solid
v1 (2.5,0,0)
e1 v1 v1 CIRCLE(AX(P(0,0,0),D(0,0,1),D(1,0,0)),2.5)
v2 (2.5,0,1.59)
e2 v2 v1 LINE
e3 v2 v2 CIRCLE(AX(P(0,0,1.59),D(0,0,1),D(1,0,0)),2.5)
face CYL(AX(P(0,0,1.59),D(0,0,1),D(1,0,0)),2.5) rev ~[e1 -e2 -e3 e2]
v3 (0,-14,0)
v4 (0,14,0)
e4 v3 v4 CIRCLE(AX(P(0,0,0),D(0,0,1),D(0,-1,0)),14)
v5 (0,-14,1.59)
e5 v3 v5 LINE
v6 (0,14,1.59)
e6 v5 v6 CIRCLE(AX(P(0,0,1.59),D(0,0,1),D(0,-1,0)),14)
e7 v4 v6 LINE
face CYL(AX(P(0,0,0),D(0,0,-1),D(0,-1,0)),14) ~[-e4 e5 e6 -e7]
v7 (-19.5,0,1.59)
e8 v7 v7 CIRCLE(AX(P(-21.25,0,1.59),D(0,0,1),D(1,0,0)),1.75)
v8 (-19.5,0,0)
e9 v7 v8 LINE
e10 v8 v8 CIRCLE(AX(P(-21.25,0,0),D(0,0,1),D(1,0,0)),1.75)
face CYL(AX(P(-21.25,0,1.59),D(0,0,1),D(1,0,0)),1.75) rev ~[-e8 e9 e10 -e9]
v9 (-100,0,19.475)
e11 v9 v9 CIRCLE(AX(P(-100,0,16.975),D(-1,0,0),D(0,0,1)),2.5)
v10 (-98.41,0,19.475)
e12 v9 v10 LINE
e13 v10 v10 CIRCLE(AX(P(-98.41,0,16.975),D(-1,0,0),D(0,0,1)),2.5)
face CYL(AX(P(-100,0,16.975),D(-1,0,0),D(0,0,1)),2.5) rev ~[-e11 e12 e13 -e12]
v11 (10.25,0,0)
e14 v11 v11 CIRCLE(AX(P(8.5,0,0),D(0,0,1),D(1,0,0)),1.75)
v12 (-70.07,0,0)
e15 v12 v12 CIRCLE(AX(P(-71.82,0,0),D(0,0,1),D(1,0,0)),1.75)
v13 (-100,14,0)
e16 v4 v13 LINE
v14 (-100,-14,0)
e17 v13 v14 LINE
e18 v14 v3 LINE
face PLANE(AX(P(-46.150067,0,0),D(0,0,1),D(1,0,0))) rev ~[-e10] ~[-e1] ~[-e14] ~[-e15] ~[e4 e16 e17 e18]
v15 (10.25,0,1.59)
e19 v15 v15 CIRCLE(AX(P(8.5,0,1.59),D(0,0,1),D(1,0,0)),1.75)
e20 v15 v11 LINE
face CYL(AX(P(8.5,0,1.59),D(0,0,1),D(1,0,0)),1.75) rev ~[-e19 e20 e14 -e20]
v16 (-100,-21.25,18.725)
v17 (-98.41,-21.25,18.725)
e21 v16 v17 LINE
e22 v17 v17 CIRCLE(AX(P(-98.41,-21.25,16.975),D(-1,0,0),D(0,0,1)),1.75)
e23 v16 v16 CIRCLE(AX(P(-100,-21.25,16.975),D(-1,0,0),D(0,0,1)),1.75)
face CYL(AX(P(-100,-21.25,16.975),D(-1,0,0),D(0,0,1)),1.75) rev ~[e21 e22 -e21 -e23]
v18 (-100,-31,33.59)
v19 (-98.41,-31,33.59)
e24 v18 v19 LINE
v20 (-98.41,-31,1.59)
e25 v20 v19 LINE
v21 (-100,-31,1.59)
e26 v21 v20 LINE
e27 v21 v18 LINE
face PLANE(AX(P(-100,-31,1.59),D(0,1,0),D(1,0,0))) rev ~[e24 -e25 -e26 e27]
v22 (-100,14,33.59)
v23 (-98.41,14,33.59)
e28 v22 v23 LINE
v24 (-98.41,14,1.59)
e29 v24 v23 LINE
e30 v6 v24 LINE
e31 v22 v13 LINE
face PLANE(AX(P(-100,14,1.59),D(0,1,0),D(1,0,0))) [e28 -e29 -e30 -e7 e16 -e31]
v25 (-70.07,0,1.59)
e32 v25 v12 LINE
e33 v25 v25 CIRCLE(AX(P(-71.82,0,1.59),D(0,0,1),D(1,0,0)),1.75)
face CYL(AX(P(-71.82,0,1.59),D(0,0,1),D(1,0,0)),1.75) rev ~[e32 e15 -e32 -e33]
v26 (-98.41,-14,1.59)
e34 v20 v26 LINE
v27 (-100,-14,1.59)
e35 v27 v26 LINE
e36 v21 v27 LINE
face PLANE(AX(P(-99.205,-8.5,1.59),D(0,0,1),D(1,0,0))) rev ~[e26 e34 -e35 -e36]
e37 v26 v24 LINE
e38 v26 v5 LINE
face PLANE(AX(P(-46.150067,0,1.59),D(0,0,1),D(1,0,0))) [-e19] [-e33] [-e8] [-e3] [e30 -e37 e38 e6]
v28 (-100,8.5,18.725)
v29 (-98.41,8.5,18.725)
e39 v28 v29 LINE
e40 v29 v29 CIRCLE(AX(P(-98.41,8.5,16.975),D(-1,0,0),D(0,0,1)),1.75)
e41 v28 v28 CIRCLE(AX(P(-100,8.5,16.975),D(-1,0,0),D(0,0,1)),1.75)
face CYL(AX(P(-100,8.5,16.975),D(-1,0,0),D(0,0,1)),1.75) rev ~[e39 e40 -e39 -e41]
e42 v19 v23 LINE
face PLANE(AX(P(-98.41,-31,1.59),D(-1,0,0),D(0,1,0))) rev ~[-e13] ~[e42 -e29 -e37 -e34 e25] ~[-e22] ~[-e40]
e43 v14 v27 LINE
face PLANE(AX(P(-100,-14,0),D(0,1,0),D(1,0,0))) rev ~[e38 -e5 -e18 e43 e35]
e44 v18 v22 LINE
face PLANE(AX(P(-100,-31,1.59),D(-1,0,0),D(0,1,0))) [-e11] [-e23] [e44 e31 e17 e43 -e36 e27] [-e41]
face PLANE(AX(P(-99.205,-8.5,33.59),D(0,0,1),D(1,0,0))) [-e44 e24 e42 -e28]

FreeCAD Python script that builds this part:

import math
import FreeCAD as App
import Part
import Sketcher

V = App.Vector


def add_polygon(sketch, points):
    """Adds a closed chain of lines whose ends are joined by coincident constraints."""
    first, n = sketch.GeometryCount, len(points)
    for a, b in zip(points, points[1:] + points[:1]):
        sketch.addGeometry(Part.LineSegment(App.Vector(*a, 0), App.Vector(*b, 0)), False)
    for i in range(n):
        sketch.addConstraint(Sketcher.Constraint("Coincident", first + i, 2, first + (i + 1) % n, 1))

doc = App.newDocument("Part")
body = doc.addObject("PartDesign::Body", "Body")

# Sketch on XY plane
sketch1 = body.newObject("Sketcher::SketchObject", "Sketch")
sketch1.AttachmentSupport = (doc.getObject("XY_Plane"), [""])
sketch1.MapMode = "FlatFace"
sketch1.addGeometry([
    Part.LineSegment(V(0, 14, 0), V(-100, 14, 0)),
    Part.LineSegment(V(-100, 14, 0), V(-100, -14, 0)),
    Part.LineSegment(V(-100, -14, 0), V(0, -14, 0)),
    Part.ArcOfCircle(Part.Circle(V(0, 0, 0), V(0, 0, 1), 14), math.radians(-90), math.radians(90)),
], False)
sketch1.addConstraint([
    Sketcher.Constraint("Coincident", 0, 2, 1, 1),
    Sketcher.Constraint("Coincident", 1, 2, 2, 1),
    Sketcher.Constraint("Tangent", 2, 2, 3, 1),
    Sketcher.Constraint("Tangent", 3, 2, 0, 1),
    Sketcher.Constraint("Horizontal", 0),
    Sketcher.Constraint("Vertical", 1),
    Sketcher.Constraint("Horizontal", 2),
    Sketcher.Constraint("Coincident", 3, 3, -1, 1),
    Sketcher.Constraint("Radius", 3, 14.0),
    Sketcher.Constraint("DistanceX", 0, 2, 0, 1, 100.0),
])
pad1 = body.newObject("PartDesign::Pad", "Pad")
pad1.Profile = sketch1
pad1.Length = 1.59

# Sketch on XY plane
sketch2 = body.newObject("Sketcher::SketchObject", "Sketch001")
sketch2.AttachmentSupport = (doc.getObject("XY_Plane"), [""])
sketch2.MapMode = "FlatFace"
sketch2.AttachmentOffset = App.Placement(V(0, 0, 1.59), App.Rotation())
add_polygon(sketch2, [(-100, 14), (-100, -31), (-98.4, -31), (-98.4, 14)])  # lines 0-3
sketch2.addConstraint([
    Sketcher.Constraint("Vertical", 0),
    Sketcher.Constraint("Horizontal", 1),
    Sketcher.Constraint("Vertical", 2),
    Sketcher.Constraint("Horizontal", 3),
    Sketcher.Constraint("DistanceY", 0, 2, 0, 1, 45.0),
    Sketcher.Constraint("DistanceX", 0, 2, -1, 1, 100.0),
    Sketcher.Constraint("DistanceY", 0, 2, -1, 1, 31.0),
    Sketcher.Constraint("DistanceX", 1, 1, 1, 2, 1.59),
])
pad2 = body.newObject("PartDesign::Pad", "Pad001")
pad2.Profile = sketch2
pad2.Length = 32

# Sketch on XY plane
sketch3 = body.newObject("Sketcher::SketchObject", "Sketch002")
sketch3.AttachmentSupport = (doc.getObject("XY_Plane"), [""])
sketch3.MapMode = "FlatFace"
sketch3.AttachmentOffset = App.Placement(V(0, 0, 1.59), App.Rotation())
sketch3.addGeometry([
    Part.Circle(V(0, 0, 0), V(0, 0, 1), 2.5),
    Part.Circle(V(8.5, 0, 0), V(0, 0, 1), 1.8),
    Part.Circle(V(-21.2, 0, 0), V(0, 0, 1), 1.8),
    Part.Circle(V(-71.8, 0, 0), V(0, 0, 1), 1.8),
], False)
sketch3.addConstraint([
    Sketcher.Constraint("Coincident", 0, 3, -1, 1),
    Sketcher.Constraint("Equal", 1, 2),
    Sketcher.Constraint("Equal", 2, 3),
    Sketcher.Constraint("PointOnObject", 1, 3, -1),
    Sketcher.Constraint("PointOnObject", 2, 3, -1),
    Sketcher.Constraint("PointOnObject", 3, 3, -1),
    Sketcher.Constraint("Diameter", 0, 5.0),
    Sketcher.Constraint("Diameter", 1, 3.5),
    Sketcher.Constraint("DistanceX", -1, 1, 1, 3, 8.5),
    Sketcher.Constraint("DistanceX", 2, 3, -1, 1, 21.25),
    Sketcher.Constraint("DistanceX", 3, 3, -1, 1, 71.82),
])
pocket1 = body.newObject("PartDesign::Pocket", "Pocket")
pocket1.Profile = sketch3
pocket1.Type = "ThroughAll"

# Sketch on YZ plane
sketch4 = body.newObject("Sketcher::SketchObject", "Sketch003")
sketch4.AttachmentSupport = (doc.getObject("YZ_Plane"), [""])
sketch4.MapMode = "FlatFace"
sketch4.AttachmentOffset = App.Placement(V(0, 0, -100), App.Rotation())
sketch4.addGeometry([
    Part.Circle(V(0, 17, 0), V(0, 0, 1), 2.5),
    Part.Circle(V(8.5, 17, 0), V(0, 0, 1), 1.8),
    Part.Circle(V(-21.2, 17, 0), V(0, 0, 1), 1.8),
], False)
sketch4.addConstraint([
    Sketcher.Constraint("Equal", 1, 2),
    Sketcher.Constraint("PointOnObject", 0, 3, -2),
    Sketcher.Constraint("Horizontal", 0, 3, 1, 3),
    Sketcher.Constraint("Horizontal", 1, 3, 2, 3),
    Sketcher.Constraint("Diameter", 0, 5.0),
    Sketcher.Constraint("Diameter", 1, 3.5),
    Sketcher.Constraint("DistanceX", -1, 1, 1, 3, 8.5),
    Sketcher.Constraint("DistanceX", 2, 3, -1, 1, 21.25),
    Sketcher.Constraint("DistanceY", -1, 1, 0, 3, 16.975),
])
pocket2 = body.newObject("PartDesign::Pocket", "Pocket001")
pocket2.Profile = sketch4
pocket2.Type = "ThroughAll"
pocket2.Reversed = True

doc.recompute()
